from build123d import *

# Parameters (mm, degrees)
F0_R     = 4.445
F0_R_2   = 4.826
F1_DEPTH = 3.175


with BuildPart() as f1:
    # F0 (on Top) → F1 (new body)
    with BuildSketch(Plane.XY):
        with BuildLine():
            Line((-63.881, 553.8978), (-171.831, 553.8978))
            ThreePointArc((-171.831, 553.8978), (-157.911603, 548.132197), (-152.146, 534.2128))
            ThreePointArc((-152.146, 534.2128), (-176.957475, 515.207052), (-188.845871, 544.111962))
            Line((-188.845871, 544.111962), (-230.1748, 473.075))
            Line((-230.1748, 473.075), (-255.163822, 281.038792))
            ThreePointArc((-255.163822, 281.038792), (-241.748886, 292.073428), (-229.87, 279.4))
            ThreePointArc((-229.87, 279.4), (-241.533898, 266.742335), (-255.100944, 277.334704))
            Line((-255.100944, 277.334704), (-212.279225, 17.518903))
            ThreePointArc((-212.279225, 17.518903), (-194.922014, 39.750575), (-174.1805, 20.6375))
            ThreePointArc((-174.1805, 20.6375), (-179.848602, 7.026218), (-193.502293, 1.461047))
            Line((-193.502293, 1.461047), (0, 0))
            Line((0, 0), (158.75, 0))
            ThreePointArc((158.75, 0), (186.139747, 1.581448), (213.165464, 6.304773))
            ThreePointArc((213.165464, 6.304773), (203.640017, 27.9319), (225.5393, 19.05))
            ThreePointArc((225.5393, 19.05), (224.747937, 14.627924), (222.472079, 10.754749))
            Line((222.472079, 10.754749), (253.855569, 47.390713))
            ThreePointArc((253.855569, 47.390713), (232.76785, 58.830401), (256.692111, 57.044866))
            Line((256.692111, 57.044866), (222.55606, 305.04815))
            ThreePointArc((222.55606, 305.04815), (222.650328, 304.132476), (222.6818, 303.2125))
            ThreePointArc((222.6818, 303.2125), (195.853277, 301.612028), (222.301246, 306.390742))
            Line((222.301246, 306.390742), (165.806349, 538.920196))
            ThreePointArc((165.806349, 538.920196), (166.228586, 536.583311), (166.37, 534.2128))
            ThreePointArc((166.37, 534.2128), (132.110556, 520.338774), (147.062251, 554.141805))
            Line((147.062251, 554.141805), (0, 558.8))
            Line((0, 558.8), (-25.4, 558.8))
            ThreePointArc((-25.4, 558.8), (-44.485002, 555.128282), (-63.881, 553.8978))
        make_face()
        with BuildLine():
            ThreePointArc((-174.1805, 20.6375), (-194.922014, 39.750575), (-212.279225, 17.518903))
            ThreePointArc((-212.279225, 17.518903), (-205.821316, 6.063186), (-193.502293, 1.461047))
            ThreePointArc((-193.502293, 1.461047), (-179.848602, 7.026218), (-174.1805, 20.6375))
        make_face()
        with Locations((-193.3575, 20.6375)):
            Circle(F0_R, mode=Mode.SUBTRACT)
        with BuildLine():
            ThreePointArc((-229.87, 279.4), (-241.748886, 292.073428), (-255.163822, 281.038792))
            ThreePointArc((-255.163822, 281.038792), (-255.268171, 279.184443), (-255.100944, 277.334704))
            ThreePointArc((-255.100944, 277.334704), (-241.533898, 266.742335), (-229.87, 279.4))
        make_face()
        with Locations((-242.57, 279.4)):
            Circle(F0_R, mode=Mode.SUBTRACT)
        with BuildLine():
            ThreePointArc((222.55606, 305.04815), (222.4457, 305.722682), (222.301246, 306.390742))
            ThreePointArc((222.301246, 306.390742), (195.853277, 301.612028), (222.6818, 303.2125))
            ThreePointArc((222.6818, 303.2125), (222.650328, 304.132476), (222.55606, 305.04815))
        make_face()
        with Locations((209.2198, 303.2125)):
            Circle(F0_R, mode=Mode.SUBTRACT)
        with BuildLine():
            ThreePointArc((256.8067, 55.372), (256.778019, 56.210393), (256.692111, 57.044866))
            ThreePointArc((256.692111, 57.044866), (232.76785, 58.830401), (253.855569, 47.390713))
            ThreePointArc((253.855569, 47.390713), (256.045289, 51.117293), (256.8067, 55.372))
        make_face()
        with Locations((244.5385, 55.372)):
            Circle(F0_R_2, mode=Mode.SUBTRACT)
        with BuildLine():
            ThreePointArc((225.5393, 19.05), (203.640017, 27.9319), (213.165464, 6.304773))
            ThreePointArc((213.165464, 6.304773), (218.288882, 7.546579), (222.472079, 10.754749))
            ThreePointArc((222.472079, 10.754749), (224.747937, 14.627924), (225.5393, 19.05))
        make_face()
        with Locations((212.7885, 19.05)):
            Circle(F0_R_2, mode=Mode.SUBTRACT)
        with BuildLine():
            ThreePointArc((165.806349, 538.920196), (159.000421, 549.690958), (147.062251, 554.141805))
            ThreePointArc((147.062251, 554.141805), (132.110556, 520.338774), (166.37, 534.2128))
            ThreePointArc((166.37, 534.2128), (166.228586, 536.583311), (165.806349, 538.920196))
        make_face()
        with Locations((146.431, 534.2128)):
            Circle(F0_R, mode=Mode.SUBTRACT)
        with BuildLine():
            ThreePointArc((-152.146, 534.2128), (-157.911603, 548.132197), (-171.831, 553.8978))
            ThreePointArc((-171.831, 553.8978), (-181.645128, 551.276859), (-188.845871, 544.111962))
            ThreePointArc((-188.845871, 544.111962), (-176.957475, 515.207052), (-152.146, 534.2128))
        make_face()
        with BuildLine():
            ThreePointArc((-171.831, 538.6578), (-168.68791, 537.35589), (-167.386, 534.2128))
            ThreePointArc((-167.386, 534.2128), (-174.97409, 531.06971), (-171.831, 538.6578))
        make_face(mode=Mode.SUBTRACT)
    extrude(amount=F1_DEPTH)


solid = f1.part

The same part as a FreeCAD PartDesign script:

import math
import FreeCAD as App
import Part
import Sketcher
Q = App.Units.Quantity

doc = App.newDocument("Part")
params = doc.addObject("Spreadsheet::Sheet", "Params")
for row, (alias, value) in enumerate([
    ("sketch1_diameter", "0.35 in"),
    ("sketch1_diameter2", "0.38 in"),
    ("sketch1_diameter3", "0.38 in"),
    ("sketch1_diameter4", "0.35 in"),
    ("sketch1_diameter5", "0.35 in"),
    ("pad1_length", "0.125 in"),
], start=1):
    params.set(f"A{row}", alias)
    params.set(f"B{row}", "=" + value)
    params.setAlias(f"B{row}", alias)

body = doc.addObject("PartDesign::Body", "Body")

# Sketch on XY plane
sketch1 = body.newObject("Sketcher::SketchObject", "Sketch")
sketch1.AttachmentSupport = (doc.getObject("XY_Plane"), [""])
sketch1.MapMode = "FlatFace"
sketch1.addGeometry(Part.LineSegment(App.Vector(-63.881, 553.8978, 0), App.Vector(-171.831, 553.8978, 0)), False)
sketch1.addGeometry(Part.ArcOfCircle(Part.Circle(App.Vector(-171.830999, 534.212797, 0), App.Vector(0, 0, 1), 19.685003), math.radians(90.000003), math.radians(149.809376)), False)
sketch1.addGeometry(Part.LineSegment(App.Vector(-188.845871, 544.111962, 0), App.Vector(-230.1748, 473.075, 0)), False)
sketch1.addGeometry(Part.LineSegment(App.Vector(-230.1748, 473.075, 0), App.Vector(-255.163822, 281.038792, 0)), False)
sketch1.addGeometry(Part.ArcOfCircle(Part.Circle(App.Vector(-242.570048, 279.399997, 0), App.Vector(0, 0, 1), 12.699952), math.radians(172.585912), math.radians(189.359127)), False)
sketch1.addGeometry(Part.LineSegment(App.Vector(-255.100944, 277.334704, 0), App.Vector(-212.279225, 17.518903, 0)), False)
sketch1.addGeometry(Part.ArcOfCircle(Part.Circle(App.Vector(-193.357501, 20.637499, 0), App.Vector(0, 0, 1), 19.176998), math.radians(-170.640899), math.radians(-90.432603)), False)
sketch1.addGeometry(Part.LineSegment(App.Vector(-193.502293, 1.461047, 0), App.Vector(0, 0, 0)), False)
sketch1.addGeometry(Part.LineSegment(App.Vector(0, 0, 0), App.Vector(158.75, 0, 0)), False)
sketch1.addGeometry(Part.ArcOfCircle(Part.Circle(App.Vector(158.749999, 237.977879, 0), App.Vector(0, 0, 1), 237.977879), math.radians(-90), math.radians(-76.781944)), False)
sketch1.addGeometry(Part.ArcOfCircle(Part.Circle(App.Vector(212.788498, 19.050002, 0), App.Vector(0, 0, 1), 12.750802), math.radians(-88.305855), math.radians(-40.584374)), False)
sketch1.addGeometry(Part.LineSegment(App.Vector(222.472079, 10.754749, 0), App.Vector(253.855569, 47.390713, 0)), False)
sketch1.addGeometry(Part.ArcOfCircle(Part.Circle(App.Vector(244.538501, 55.372001, 0), App.Vector(0, 0, 1), 12.268199), math.radians(-40.584377), math.radians(-0.000003)), False)
sketch1.addGeometry(Part.ArcOfCircle(Part.Circle(App.Vector(244.538362, 55.371993, 0), App.Vector(0, 0, 1), 12.268338), math.radians(0.000031), math.radians(7.83709)), False)
sketch1.addGeometry(Part.LineSegment(App.Vector(256.692111, 57.044866, 0), App.Vector(222.55606, 305.04815, 0)), False)
sketch1.addGeometry(Part.ArcOfCircle(Part.Circle(App.Vector(209.219737, 303.212492, 0), App.Vector(0, 0, 1), 13.462063), math.radians(7.837146), math.radians(13.655847)), False)
sketch1.addGeometry(Part.LineSegment(App.Vector(222.301246, 306.390742, 0), App.Vector(165.806349, 538.920196, 0)), False)
sketch1.addGeometry(Part.ArcOfCircle(Part.Circle(App.Vector(146.431, 534.2128, 0), App.Vector(0, 0, 1), 19.939), math.radians(13.655877), math.radians(88.185763)), False)
sketch1.addGeometry(Part.LineSegment(App.Vector(147.062251, 554.141805, 0), App.Vector(0, 558.8, 0)), False)
sketch1.addGeometry(Part.LineSegment(App.Vector(0, 558.8, 0), App.Vector(-25.4, 558.8, 0)), False)
sketch1.addGeometry(Part.ArcOfCircle(Part.Circle(App.Vector(-63.880994, 707.381789, 0), App.Vector(0, 0, 1), 153.483989), math.radians(-90.000002), math.radians(-75.480075)), False)
sketch1.addGeometry(Part.Circle(App.Vector(-193.3575, 20.6375, 0), App.Vector(0, 0, 1), 4.445), False)
sketch1.addGeometry(Part.Circle(App.Vector(212.7885, 19.05, 0), App.Vector(0, 0, 1), 4.826), False)
sketch1.addGeometry(Part.Circle(App.Vector(244.5385, 55.372, 0), App.Vector(0, 0, 1), 4.826), False)
sketch1.addGeometry(Part.Circle(App.Vector(-242.57, 279.4, 0), App.Vector(0, 0, 1), 4.445), False)
sketch1.addGeometry(Part.ArcOfCircle(Part.Circle(App.Vector(-171.831, 534.2128, 0), App.Vector(0, 0, 1), 4.445), math.radians(89.999997), math.radians(360.000003)), False)
sketch1.addGeometry(Part.ArcOfCircle(Part.Circle(App.Vector(-171.830999, 534.212801, 0), App.Vector(0, 0, 1), 4.444999), math.radians(-0.000016), math.radians(90.000016)), False)
sketch1.addGeometry(Part.Circle(App.Vector(209.2198, 303.2125, 0), App.Vector(0, 0, 1), 4.445), False)
sketch1.addGeometry(Part.Circle(App.Vector(146.431, 534.2128, 0), App.Vector(0, 0, 1), 4.445), False)
sketch1.addConstraint(Sketcher.Constraint("Coincident", 0, 2, 1, 1))
sketch1.addConstraint(Sketcher.Constraint("Coincident", 1, 2, 2, 1))
sketch1.addConstraint(Sketcher.Constraint("Coincident", 2, 2, 3, 1))
sketch1.addConstraint(Sketcher.Constraint("Coincident", 3, 2, 4, 1))
sketch1.addConstraint(Sketcher.Constraint("Coincident", 4, 2, 5, 1))
sketch1.addConstraint(Sketcher.Constraint("Coincident", 5, 2, 6, 1))
sketch1.addConstraint(Sketcher.Constraint("Coincident", 6, 2, 7, 1))
sketch1.addConstraint(Sketcher.Constraint("Coincident", 7, 2, 8, 1))
sketch1.addConstraint(Sketcher.Constraint("Coincident", 8, 2, 9, 1))
sketch1.addConstraint(Sketcher.Constraint("Coincident", 9, 2, 10, 1))
sketch1.addConstraint(Sketcher.Constraint("Coincident", 10, 2, 11, 1))
sketch1.addConstraint(Sketcher.Constraint("Coincident", 11, 2, 12, 1))
sketch1.addConstraint(Sketcher.Constraint("Coincident", 12, 2, 13, 1))
sketch1.addConstraint(Sketcher.Constraint("Coincident", 13, 2, 14, 1))
sketch1.addConstraint(Sketcher.Constraint("Coincident", 14, 2, 15, 1))
sketch1.addConstraint(Sketcher.Constraint("Coincident", 15, 2, 16, 1))
sketch1.addConstraint(Sketcher.Constraint("Coincident", 16, 2, 17, 1))
sketch1.addConstraint(Sketcher.Constraint("Coincident", 17, 2, 18, 1))
sketch1.addConstraint(Sketcher.Constraint("Coincident", 18, 2, 19, 1))
sketch1.addConstraint(Sketcher.Constraint("Coincident", 19, 2, 20, 2))
sketch1.addConstraint(Sketcher.Constraint("Coincident", 20, 1, 0, 1))
sketch1.addConstraint(Sketcher.Constraint("Coincident", 25, 1, 26, 2))
sketch1.addConstraint(Sketcher.Constraint("Coincident", 26, 1, 25, 2))
sketch1.addConstraint(Sketcher.Constraint("Horizontal", 0))
sketch1.addConstraint(Sketcher.Constraint("Horizontal", 8))
sketch1.addConstraint(Sketcher.Constraint("Horizontal", 19))
sketch1.addConstraint(Sketcher.Constraint("Coincident", 7, 2, -1, 1))
sketch1.addConstraint(Sketcher.Constraint("Coincident", 21, 3, 6, 3))
sketch1.addConstraint(Sketcher.Constraint("Coincident", 22, 3, 10, 3))
sketch1.addConstraint(Sketcher.Constraint("Coincident", 23, 3, 12, 3))
sketch1.addConstraint(Sketcher.Constraint("Coincident", 25, 3, 1, 3))
sketch1.addConstraint(Sketcher.Constraint("Coincident", 28, 3, 17, 3))
sketch1.addConstraint(Sketcher.Constraint("PointOnObject", 18, 2, -2))
sketch1.addConstraint(Sketcher.Constraint("Diameter", 21, Q("0.35 in")))
sketch1.addConstraint(Sketcher.Constraint("Diameter", 22, Q("0.38 in")))
sketch1.addConstraint(Sketcher.Constraint("Diameter", 23, Q("0.38 in")))
sketch1.addConstraint(Sketcher.Constraint("Diameter", 24, Q("0.35 in")))
sketch1.addConstraint(Sketcher.Constraint("Diameter", 27, Q("0.35 in")))
sketch1.addConstraint(Sketcher.Constraint("Diameter", 28, Q("0.35 in")))
sketch1.addConstraint(Sketcher.Constraint("DistanceX", 19, 2, 19, 1, Q("1 in")))
sketch1.addConstraint(Sketcher.Constraint("DistanceY", -1, 1, 4, 3, Q("10.9999999 in")))
sketch1.addConstraint(Sketcher.Constraint("DistanceY", -1, 1, 24, 3, Q("11 in")))
sketch1.addConstraint(Sketcher.Constraint("DistanceY", -1, 1, 18, 2, Q("22 in")))
sketch1.addConstraint(Sketcher.Constraint("Radius", 1, Q("0.7750001 in")))
sketch1.addConstraint(Sketcher.Constraint("Radius", 6, Q("0.7549999 in")))
sketch1.addConstraint(Sketcher.Constraint("Radius", 10, Q("0.5020001 in")))
sketch1.addConstraint(Sketcher.Constraint("Radius", 12, Q("0.483 in")))
sketch1.addConstraint(Sketcher.Constraint("Radius", 17, Q("0.785 in")))
sketch1.addConstraint(Sketcher.Constraint("Radius", 25, Q("0.175 in")))
sketch1.addConstraint(Sketcher.Constraint("Radius", 26, Q("0.175 in")))
sketch1.addConstraint(Sketcher.Constraint("DistanceX", 0, 2, 0, 1, Q("4.25 in")))
sketch1.addConstraint(Sketcher.Constraint("DistanceX", 8, 1, 8, 2, Q("6.25 in")))
sketch1.addConstraint(Sketcher.Constraint("DistanceX", 24, 3, 9, 3, Q("15.8 in")))
sketch1.addConstraint(Sketcher.Constraint("DistanceX", -1, 1, 9, 3, Q("6.25 in")))
sketch1.addConstraint(Sketcher.Constraint("DistanceY", -1, 1, 10, 3, Q("0.7500001 in")))
sketch1.addConstraint(Sketcher.Constraint("DistanceY", -1, 1, 12, 3, Q("2.18 in")))
sketch1.addConstraint(Sketcher.Constraint("DistanceY", -1, 1, 12, 2, Q("2.18 in")))
sketch1.addConstraint(Sketcher.Constraint("DistanceX", 26, 1, -1, 1, Q("6.59 in")))
sketch1.addConstraint(Sketcher.Constraint("DistanceX", 6, 3, 10, 3, Q("15.99 in")))
sketch1.addConstraint(Sketcher.Constraint("DistanceX", 10, 3, 12, 3, Q("1.2500001 in")))
sketch1.addConstraint(Sketcher.Constraint("DistanceY", 13, 3, 4, 3, Q("8.8200002 in")))
sketch1.addConstraint(Sketcher.Constraint("DistanceX", 1, 3, 17, 3, Q("12.53 in")))
sketch1.addConstraint(Sketcher.Constraint("DistanceX", 26, 3, 20, 1, Q("4.25 in")))
sketch1.addConstraint(Sketcher.Constraint("DistanceY", -1, 1, 1, 3, Q("21.0319999 in")))
sketch1.addConstraint(Sketcher.Constraint("DistanceY", -1, 1, 6, 3, Q("0.8124999 in")))
sketch1.addConstraint(Sketcher.Constraint("DistanceY", -1, 1, 17, 3, Q("21.032 in")))
sketch1.addConstraint(Sketcher.Constraint("DistanceX", -1, 1, 27, 3, Q("8.237 in")))
sketch1.addConstraint(Sketcher.Constraint("DistanceY", -1, 1, 27, 3, Q("11.9375 in")))
sketch1.addConstraint(Sketcher.Constraint("DistanceX", 2, 2, -1, 1, Q("9.062 in")))
sketch1.addConstraint(Sketcher.Constraint("DistanceY", -1, 1, 2, 2, Q("18.625 in")))
sketch1.addConstraint(Sketcher.Constraint("DistanceX", 25, 1, -1, 1, Q("6.765 in")))
sketch1.addConstraint(Sketcher.Constraint("DistanceY", -1, 1, 26, 1, Q("21.032 in")))
sketch1.addConstraint(Sketcher.Constraint("Radius", 9, 237.977879))
sketch1.addConstraint(Sketcher.Constraint("Radius", 13, 12.268338))
sketch1.addConstraint(Sketcher.Constraint("Radius", 20, 153.483989))
sketch1.addConstraint(Sketcher.Constraint("DistanceX", 24, 3, 21, 3, Q("1.9375 in")))
sketch1.addConstraint(Sketcher.Constraint("Radius", 4, 12.699952))
sketch1.addConstraint(Sketcher.Constraint("Radius", 15, 13.462063))
sketch1.addConstraint(Sketcher.Constraint("DistanceY", 13, 3, 15, 3, Q("9.7574999 in")))
sketch1.addConstraint(Sketcher.Constraint("Distance", 5, 263.321002))
sketch1.addConstraint(Sketcher.Constraint("DistanceY", 5, 2, 4, 2, 259.815801))
sketch1.addConstraint(Sketcher.Constraint("DistanceX", 17, 2, 16, 2, 18.744098))
sketch1.addConstraint(Sketcher.Constraint("Distance", 3, 193.655251))
sketch1.addConstraint(Sketcher.Constraint("Distance", 7, 193.507809))
sketch1.addConstraint(Sketcher.Constraint("DistanceX", 1, 2, -1, 1, 188.845871))
sketch1.addConstraint(Sketcher.Constraint("DistanceX", -1, 1, 10, 2, 222.472079))
sketch1.addConstraint(Sketcher.Constraint("DistanceX", -1, 1, 11, 2, 253.855569))
sketch1.addConstraint(Sketcher.Constraint("DistanceX", -1, 1, 13, 2, 256.692111))
sketch1.addConstraint(Sketcher.Constraint("DistanceX", -1, 1, 14, 2, 222.55606))
sketch1.addConstraint(Sketcher.Constraint("DistanceY", -1, 1, 14, 2, 305.04815))
sketch1.addConstraint(Sketcher.Constraint("DistanceY", -1, 1, 15, 2, 306.390742))
sketch1.addConstraint(Sketcher.Constraint("DistanceX", -1, 1, 16, 2, 165.806349))
sketch1.addConstraint(Sketcher.Constraint("DistanceY", 4, 2, 3, 2, 3.704088))
sketch1.setExpression("Constraints[33]", "Params.sketch1_diameter")
sketch1.setExpression("Constraints[34]", "Params.sketch1_diameter2")
sketch1.setExpression("Constraints[35]", "Params.sketch1_diameter3")
sketch1.setExpression("Constraints[36]", "Params.sketch1_diameter4")
sketch1.setExpression("Constraints[37]", "Params.sketch1_diameter5")
pad1 = body.newObject("PartDesign::Pad", "Pad")
pad1.Profile = sketch1
pad1.setExpression("Length", "Params.pad1_length")

doc.recompute()
